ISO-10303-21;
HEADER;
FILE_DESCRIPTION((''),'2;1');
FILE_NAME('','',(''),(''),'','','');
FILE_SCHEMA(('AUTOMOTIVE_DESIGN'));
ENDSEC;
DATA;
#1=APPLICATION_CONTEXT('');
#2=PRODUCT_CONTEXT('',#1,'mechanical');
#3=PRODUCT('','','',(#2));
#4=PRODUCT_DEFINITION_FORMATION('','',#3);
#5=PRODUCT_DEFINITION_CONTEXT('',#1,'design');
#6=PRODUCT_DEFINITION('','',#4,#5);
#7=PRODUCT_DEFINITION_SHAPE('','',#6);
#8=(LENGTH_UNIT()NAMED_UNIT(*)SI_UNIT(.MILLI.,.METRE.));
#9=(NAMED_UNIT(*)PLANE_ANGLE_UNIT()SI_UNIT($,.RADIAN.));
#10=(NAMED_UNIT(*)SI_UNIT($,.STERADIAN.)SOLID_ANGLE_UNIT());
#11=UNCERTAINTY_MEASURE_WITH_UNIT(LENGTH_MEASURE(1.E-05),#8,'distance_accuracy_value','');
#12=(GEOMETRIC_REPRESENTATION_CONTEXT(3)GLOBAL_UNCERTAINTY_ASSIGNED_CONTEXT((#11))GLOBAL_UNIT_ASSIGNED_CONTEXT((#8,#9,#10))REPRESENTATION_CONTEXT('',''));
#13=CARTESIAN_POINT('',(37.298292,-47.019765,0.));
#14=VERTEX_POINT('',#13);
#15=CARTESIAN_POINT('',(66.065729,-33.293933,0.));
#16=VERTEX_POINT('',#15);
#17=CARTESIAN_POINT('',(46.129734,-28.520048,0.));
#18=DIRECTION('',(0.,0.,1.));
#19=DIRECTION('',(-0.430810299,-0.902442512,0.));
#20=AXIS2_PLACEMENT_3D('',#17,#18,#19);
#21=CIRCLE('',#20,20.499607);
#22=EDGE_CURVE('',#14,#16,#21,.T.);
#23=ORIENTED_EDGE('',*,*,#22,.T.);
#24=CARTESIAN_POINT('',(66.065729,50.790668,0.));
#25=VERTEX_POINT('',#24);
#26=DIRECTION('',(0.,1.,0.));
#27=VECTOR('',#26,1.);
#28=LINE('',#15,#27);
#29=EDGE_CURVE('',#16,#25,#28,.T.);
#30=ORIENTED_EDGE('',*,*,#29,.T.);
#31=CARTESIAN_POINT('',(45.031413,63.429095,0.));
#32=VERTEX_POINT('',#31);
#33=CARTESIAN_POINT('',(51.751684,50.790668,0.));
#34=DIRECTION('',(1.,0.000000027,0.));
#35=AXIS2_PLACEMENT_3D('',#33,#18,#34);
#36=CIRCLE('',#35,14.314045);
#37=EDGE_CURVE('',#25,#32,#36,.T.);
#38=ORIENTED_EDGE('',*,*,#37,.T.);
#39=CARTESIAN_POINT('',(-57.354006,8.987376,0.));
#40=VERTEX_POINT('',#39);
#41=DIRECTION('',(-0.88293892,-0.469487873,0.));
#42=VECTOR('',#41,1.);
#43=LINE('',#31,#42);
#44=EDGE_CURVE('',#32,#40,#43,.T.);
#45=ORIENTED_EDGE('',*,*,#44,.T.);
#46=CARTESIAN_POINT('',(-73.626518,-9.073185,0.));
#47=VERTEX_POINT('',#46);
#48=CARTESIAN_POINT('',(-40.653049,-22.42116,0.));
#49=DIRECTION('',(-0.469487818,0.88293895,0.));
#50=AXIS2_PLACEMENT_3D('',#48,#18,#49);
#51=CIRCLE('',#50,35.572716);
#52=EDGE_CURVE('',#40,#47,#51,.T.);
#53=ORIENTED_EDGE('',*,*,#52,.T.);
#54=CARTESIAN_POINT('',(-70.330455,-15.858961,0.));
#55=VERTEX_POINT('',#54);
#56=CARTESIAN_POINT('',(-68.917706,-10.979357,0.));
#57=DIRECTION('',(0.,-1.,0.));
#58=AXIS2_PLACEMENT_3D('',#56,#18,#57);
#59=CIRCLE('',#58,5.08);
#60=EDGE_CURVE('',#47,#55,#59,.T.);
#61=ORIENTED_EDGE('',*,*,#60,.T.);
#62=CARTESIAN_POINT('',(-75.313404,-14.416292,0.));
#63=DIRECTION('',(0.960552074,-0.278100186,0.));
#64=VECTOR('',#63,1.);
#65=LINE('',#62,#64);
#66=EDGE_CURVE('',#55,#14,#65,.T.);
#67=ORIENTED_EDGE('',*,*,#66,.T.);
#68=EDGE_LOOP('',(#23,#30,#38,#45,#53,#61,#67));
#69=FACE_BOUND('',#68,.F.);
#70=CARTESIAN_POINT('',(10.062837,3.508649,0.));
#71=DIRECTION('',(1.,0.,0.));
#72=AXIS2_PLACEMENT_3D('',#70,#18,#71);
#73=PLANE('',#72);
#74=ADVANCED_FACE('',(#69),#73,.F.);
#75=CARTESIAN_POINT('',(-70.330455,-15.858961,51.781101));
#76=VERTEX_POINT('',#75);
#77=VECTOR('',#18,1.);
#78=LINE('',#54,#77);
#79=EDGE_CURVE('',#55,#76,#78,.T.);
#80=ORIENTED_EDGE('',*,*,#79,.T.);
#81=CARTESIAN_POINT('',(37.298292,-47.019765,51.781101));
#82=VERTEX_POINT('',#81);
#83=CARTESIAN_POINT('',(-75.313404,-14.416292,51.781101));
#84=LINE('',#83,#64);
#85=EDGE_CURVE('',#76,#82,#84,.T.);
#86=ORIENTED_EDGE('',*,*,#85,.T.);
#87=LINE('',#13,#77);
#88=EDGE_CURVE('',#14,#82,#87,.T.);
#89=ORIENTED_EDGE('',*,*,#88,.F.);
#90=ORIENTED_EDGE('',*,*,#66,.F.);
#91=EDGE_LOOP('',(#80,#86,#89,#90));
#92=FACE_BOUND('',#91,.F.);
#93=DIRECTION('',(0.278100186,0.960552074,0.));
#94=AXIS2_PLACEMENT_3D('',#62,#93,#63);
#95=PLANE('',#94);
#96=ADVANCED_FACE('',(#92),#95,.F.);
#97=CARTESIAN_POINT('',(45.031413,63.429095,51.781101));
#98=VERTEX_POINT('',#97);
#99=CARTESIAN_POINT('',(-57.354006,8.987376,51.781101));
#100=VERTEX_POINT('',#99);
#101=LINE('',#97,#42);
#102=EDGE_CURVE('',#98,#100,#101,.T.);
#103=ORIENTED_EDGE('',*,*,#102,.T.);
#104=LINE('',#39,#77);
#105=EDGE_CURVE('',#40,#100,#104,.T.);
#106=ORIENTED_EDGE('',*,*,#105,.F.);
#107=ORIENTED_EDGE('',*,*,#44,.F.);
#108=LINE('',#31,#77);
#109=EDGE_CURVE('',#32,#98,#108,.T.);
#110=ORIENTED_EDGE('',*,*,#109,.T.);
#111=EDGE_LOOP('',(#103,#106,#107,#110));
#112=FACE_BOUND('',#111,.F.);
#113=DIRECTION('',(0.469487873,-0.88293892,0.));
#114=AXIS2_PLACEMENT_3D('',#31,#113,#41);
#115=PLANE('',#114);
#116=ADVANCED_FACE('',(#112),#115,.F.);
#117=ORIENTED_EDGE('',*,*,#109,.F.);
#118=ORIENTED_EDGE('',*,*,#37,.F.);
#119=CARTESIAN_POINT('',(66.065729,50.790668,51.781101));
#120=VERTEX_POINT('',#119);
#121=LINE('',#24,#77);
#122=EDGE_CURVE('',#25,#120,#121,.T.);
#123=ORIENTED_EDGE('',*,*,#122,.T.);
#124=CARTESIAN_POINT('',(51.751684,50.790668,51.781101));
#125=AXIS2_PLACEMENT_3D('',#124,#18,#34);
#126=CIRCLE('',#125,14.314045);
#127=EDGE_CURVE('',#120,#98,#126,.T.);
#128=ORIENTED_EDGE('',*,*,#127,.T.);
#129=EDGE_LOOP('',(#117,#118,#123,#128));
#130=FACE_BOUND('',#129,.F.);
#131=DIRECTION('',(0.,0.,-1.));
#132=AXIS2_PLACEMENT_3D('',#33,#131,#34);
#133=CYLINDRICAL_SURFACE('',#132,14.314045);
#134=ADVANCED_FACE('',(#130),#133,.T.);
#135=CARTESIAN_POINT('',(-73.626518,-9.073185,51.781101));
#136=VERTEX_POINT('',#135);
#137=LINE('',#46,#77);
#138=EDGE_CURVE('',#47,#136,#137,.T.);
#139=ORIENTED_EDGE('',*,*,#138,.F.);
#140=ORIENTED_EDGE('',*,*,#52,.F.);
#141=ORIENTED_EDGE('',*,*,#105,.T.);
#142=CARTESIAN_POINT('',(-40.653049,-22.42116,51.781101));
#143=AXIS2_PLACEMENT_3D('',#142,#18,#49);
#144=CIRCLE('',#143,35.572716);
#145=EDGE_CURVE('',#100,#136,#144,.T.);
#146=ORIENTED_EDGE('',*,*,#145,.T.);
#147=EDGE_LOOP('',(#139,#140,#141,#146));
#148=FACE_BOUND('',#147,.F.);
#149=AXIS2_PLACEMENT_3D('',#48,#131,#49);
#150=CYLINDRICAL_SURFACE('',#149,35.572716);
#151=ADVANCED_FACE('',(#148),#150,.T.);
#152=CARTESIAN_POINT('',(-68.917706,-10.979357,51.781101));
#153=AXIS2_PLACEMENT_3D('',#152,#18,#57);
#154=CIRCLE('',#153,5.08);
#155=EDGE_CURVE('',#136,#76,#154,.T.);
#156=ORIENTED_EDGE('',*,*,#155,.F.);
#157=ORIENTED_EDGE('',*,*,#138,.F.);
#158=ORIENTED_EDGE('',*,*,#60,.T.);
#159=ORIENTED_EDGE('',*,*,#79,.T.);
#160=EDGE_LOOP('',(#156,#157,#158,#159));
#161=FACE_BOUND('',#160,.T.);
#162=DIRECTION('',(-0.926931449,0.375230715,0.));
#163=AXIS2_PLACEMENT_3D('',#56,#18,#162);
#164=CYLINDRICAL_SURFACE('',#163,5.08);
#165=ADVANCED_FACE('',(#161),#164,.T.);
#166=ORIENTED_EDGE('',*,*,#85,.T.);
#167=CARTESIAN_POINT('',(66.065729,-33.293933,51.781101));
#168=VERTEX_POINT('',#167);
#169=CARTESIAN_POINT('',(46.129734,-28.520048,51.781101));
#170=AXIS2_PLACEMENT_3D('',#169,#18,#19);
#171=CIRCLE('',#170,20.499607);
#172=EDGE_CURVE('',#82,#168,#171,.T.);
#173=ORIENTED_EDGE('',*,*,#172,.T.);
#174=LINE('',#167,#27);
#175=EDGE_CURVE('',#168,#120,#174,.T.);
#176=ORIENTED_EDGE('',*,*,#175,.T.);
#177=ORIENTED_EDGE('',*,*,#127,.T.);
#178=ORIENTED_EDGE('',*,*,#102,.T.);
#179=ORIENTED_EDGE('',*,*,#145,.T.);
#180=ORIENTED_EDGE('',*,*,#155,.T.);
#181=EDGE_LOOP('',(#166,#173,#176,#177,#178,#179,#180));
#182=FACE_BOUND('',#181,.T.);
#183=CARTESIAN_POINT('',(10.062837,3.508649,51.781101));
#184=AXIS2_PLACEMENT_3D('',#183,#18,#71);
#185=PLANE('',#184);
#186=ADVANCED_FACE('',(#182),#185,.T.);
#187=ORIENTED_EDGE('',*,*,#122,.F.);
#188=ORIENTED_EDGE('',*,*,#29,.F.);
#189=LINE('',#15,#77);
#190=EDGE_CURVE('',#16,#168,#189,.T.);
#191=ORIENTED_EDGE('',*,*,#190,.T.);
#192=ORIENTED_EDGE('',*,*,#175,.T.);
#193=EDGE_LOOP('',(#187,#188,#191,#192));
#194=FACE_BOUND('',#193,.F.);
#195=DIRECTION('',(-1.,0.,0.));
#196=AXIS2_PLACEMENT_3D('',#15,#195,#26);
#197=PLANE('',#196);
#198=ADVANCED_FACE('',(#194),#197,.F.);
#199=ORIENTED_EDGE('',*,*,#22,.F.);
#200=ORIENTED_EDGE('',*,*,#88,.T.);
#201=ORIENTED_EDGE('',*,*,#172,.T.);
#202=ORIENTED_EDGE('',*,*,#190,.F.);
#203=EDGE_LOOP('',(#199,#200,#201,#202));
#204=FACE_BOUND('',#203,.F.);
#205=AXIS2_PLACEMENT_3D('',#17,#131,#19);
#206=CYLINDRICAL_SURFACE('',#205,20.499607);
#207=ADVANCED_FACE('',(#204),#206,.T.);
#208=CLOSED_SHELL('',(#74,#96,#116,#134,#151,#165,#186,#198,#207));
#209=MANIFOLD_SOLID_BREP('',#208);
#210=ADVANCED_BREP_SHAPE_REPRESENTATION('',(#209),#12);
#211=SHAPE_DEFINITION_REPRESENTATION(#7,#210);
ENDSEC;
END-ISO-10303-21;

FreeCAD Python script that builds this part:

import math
import FreeCAD as App
import Part
import Sketcher

V = App.Vector
Q = App.Units.Quantity


def edges_at(feature, points):
    """Names of the edges that pass closest to the given points."""
    edges = feature.Shape.Edges
    near = lambda p: min(range(len(edges)), key=lambda i: edges[i].distToShape(Part.Vertex(*p))[0])
    return sorted({f"Edge{near(p) + 1}" for p in points})

doc = App.newDocument("Part")
body = doc.addObject("PartDesign::Body", "Body")

sketch1 = doc.addObject("Sketcher::SketchObject", "Sketch")
body.addObject(sketch1)
sketch1.AttachmentSupport = (doc.XY_Plane, [""])
sketch1.MapMode = "FlatFace"
sketch1.addGeometry([
    Part.ArcOfCircle(Part.Circle(V(-40.653049, -22.42116, 0), V(0, 0, 1), 35.572716), math.radians(118.001055), math.radians(166.995457)),
    Part.LineSegment(V(-75.313404, -14.416292, 0), V(37.298292, -47.019765, 0)),
    Part.ArcOfCircle(Part.Circle(V(46.129734, -28.520048, 0), V(0, 0, 1), 20.499607), math.radians(-115.518995), math.radians(-13.466506)),
    Part.LineSegment(V(66.065729, -33.293933, 0), V(66.065729, 50.790668, 0)),
    Part.ArcOfCircle(Part.Circle(V(51.751684, 50.790668, 0), V(0, 0, 1), 14.314045), math.radians(0.000002), math.radians(118.00106)),
    Part.LineSegment(V(45.031413, 63.429095, 0), V(-57.354006, 8.987376, 0)),
], False)
sketch1.addConstraint([
    Sketcher.Constraint("Coincident", 0, 2, 1, 1),
    Sketcher.Constraint("Coincident", 1, 2, 2, 1),
    Sketcher.Constraint("Coincident", 2, 2, 3, 1),
    Sketcher.Constraint("Tangent", 3, 2, 4, 1),
    Sketcher.Constraint("Tangent", 4, 2, 5, 1),
    Sketcher.Constraint("Tangent", 5, 2, 0, 1),
    Sketcher.Constraint("Vertical", 3),
    Sketcher.Constraint("DistanceY", 3, 1, 3, 2, 84.084601),
    Sketcher.Constraint("Radius", 0, 35.572716),
    Sketcher.Constraint("Radius", 2, 20.499607),
    Sketcher.Constraint("Radius", 4, 14.314045),
    Sketcher.Constraint("Distance", 5, 115.959798),
    Sketcher.Constraint("DistanceX", 5, 2, 1, 2, 94.652298),
    Sketcher.Constraint("Distance", 1, 117.23643),
    Sketcher.Constraint("DistanceX", 0, 3, -1, 1, 40.653049),
    Sketcher.Constraint("DistanceY", 0, 3, -1, 1, 22.42116),
    Sketcher.Constraint("DistanceY", 2, 3, -1, 1, 28.520048),
    Sketcher.Constraint("DistanceX", -1, 1, 1, 2, 37.298292),
])
pad1 = doc.addObject("PartDesign::Pad", "Pad")
body.addObject(pad1)
pad1.Profile = sketch1
pad1.Length = 51.781101
doc.recompute()

fillet = doc.addObject("PartDesign::Fillet", "Fillet")
body.addObject(fillet)
fillet.Base = (pad1, edges_at(pad1, [(-75.313, -14.416, 25.891)]))
fillet.Radius = Q("0.2 in")

doc.recompute()
